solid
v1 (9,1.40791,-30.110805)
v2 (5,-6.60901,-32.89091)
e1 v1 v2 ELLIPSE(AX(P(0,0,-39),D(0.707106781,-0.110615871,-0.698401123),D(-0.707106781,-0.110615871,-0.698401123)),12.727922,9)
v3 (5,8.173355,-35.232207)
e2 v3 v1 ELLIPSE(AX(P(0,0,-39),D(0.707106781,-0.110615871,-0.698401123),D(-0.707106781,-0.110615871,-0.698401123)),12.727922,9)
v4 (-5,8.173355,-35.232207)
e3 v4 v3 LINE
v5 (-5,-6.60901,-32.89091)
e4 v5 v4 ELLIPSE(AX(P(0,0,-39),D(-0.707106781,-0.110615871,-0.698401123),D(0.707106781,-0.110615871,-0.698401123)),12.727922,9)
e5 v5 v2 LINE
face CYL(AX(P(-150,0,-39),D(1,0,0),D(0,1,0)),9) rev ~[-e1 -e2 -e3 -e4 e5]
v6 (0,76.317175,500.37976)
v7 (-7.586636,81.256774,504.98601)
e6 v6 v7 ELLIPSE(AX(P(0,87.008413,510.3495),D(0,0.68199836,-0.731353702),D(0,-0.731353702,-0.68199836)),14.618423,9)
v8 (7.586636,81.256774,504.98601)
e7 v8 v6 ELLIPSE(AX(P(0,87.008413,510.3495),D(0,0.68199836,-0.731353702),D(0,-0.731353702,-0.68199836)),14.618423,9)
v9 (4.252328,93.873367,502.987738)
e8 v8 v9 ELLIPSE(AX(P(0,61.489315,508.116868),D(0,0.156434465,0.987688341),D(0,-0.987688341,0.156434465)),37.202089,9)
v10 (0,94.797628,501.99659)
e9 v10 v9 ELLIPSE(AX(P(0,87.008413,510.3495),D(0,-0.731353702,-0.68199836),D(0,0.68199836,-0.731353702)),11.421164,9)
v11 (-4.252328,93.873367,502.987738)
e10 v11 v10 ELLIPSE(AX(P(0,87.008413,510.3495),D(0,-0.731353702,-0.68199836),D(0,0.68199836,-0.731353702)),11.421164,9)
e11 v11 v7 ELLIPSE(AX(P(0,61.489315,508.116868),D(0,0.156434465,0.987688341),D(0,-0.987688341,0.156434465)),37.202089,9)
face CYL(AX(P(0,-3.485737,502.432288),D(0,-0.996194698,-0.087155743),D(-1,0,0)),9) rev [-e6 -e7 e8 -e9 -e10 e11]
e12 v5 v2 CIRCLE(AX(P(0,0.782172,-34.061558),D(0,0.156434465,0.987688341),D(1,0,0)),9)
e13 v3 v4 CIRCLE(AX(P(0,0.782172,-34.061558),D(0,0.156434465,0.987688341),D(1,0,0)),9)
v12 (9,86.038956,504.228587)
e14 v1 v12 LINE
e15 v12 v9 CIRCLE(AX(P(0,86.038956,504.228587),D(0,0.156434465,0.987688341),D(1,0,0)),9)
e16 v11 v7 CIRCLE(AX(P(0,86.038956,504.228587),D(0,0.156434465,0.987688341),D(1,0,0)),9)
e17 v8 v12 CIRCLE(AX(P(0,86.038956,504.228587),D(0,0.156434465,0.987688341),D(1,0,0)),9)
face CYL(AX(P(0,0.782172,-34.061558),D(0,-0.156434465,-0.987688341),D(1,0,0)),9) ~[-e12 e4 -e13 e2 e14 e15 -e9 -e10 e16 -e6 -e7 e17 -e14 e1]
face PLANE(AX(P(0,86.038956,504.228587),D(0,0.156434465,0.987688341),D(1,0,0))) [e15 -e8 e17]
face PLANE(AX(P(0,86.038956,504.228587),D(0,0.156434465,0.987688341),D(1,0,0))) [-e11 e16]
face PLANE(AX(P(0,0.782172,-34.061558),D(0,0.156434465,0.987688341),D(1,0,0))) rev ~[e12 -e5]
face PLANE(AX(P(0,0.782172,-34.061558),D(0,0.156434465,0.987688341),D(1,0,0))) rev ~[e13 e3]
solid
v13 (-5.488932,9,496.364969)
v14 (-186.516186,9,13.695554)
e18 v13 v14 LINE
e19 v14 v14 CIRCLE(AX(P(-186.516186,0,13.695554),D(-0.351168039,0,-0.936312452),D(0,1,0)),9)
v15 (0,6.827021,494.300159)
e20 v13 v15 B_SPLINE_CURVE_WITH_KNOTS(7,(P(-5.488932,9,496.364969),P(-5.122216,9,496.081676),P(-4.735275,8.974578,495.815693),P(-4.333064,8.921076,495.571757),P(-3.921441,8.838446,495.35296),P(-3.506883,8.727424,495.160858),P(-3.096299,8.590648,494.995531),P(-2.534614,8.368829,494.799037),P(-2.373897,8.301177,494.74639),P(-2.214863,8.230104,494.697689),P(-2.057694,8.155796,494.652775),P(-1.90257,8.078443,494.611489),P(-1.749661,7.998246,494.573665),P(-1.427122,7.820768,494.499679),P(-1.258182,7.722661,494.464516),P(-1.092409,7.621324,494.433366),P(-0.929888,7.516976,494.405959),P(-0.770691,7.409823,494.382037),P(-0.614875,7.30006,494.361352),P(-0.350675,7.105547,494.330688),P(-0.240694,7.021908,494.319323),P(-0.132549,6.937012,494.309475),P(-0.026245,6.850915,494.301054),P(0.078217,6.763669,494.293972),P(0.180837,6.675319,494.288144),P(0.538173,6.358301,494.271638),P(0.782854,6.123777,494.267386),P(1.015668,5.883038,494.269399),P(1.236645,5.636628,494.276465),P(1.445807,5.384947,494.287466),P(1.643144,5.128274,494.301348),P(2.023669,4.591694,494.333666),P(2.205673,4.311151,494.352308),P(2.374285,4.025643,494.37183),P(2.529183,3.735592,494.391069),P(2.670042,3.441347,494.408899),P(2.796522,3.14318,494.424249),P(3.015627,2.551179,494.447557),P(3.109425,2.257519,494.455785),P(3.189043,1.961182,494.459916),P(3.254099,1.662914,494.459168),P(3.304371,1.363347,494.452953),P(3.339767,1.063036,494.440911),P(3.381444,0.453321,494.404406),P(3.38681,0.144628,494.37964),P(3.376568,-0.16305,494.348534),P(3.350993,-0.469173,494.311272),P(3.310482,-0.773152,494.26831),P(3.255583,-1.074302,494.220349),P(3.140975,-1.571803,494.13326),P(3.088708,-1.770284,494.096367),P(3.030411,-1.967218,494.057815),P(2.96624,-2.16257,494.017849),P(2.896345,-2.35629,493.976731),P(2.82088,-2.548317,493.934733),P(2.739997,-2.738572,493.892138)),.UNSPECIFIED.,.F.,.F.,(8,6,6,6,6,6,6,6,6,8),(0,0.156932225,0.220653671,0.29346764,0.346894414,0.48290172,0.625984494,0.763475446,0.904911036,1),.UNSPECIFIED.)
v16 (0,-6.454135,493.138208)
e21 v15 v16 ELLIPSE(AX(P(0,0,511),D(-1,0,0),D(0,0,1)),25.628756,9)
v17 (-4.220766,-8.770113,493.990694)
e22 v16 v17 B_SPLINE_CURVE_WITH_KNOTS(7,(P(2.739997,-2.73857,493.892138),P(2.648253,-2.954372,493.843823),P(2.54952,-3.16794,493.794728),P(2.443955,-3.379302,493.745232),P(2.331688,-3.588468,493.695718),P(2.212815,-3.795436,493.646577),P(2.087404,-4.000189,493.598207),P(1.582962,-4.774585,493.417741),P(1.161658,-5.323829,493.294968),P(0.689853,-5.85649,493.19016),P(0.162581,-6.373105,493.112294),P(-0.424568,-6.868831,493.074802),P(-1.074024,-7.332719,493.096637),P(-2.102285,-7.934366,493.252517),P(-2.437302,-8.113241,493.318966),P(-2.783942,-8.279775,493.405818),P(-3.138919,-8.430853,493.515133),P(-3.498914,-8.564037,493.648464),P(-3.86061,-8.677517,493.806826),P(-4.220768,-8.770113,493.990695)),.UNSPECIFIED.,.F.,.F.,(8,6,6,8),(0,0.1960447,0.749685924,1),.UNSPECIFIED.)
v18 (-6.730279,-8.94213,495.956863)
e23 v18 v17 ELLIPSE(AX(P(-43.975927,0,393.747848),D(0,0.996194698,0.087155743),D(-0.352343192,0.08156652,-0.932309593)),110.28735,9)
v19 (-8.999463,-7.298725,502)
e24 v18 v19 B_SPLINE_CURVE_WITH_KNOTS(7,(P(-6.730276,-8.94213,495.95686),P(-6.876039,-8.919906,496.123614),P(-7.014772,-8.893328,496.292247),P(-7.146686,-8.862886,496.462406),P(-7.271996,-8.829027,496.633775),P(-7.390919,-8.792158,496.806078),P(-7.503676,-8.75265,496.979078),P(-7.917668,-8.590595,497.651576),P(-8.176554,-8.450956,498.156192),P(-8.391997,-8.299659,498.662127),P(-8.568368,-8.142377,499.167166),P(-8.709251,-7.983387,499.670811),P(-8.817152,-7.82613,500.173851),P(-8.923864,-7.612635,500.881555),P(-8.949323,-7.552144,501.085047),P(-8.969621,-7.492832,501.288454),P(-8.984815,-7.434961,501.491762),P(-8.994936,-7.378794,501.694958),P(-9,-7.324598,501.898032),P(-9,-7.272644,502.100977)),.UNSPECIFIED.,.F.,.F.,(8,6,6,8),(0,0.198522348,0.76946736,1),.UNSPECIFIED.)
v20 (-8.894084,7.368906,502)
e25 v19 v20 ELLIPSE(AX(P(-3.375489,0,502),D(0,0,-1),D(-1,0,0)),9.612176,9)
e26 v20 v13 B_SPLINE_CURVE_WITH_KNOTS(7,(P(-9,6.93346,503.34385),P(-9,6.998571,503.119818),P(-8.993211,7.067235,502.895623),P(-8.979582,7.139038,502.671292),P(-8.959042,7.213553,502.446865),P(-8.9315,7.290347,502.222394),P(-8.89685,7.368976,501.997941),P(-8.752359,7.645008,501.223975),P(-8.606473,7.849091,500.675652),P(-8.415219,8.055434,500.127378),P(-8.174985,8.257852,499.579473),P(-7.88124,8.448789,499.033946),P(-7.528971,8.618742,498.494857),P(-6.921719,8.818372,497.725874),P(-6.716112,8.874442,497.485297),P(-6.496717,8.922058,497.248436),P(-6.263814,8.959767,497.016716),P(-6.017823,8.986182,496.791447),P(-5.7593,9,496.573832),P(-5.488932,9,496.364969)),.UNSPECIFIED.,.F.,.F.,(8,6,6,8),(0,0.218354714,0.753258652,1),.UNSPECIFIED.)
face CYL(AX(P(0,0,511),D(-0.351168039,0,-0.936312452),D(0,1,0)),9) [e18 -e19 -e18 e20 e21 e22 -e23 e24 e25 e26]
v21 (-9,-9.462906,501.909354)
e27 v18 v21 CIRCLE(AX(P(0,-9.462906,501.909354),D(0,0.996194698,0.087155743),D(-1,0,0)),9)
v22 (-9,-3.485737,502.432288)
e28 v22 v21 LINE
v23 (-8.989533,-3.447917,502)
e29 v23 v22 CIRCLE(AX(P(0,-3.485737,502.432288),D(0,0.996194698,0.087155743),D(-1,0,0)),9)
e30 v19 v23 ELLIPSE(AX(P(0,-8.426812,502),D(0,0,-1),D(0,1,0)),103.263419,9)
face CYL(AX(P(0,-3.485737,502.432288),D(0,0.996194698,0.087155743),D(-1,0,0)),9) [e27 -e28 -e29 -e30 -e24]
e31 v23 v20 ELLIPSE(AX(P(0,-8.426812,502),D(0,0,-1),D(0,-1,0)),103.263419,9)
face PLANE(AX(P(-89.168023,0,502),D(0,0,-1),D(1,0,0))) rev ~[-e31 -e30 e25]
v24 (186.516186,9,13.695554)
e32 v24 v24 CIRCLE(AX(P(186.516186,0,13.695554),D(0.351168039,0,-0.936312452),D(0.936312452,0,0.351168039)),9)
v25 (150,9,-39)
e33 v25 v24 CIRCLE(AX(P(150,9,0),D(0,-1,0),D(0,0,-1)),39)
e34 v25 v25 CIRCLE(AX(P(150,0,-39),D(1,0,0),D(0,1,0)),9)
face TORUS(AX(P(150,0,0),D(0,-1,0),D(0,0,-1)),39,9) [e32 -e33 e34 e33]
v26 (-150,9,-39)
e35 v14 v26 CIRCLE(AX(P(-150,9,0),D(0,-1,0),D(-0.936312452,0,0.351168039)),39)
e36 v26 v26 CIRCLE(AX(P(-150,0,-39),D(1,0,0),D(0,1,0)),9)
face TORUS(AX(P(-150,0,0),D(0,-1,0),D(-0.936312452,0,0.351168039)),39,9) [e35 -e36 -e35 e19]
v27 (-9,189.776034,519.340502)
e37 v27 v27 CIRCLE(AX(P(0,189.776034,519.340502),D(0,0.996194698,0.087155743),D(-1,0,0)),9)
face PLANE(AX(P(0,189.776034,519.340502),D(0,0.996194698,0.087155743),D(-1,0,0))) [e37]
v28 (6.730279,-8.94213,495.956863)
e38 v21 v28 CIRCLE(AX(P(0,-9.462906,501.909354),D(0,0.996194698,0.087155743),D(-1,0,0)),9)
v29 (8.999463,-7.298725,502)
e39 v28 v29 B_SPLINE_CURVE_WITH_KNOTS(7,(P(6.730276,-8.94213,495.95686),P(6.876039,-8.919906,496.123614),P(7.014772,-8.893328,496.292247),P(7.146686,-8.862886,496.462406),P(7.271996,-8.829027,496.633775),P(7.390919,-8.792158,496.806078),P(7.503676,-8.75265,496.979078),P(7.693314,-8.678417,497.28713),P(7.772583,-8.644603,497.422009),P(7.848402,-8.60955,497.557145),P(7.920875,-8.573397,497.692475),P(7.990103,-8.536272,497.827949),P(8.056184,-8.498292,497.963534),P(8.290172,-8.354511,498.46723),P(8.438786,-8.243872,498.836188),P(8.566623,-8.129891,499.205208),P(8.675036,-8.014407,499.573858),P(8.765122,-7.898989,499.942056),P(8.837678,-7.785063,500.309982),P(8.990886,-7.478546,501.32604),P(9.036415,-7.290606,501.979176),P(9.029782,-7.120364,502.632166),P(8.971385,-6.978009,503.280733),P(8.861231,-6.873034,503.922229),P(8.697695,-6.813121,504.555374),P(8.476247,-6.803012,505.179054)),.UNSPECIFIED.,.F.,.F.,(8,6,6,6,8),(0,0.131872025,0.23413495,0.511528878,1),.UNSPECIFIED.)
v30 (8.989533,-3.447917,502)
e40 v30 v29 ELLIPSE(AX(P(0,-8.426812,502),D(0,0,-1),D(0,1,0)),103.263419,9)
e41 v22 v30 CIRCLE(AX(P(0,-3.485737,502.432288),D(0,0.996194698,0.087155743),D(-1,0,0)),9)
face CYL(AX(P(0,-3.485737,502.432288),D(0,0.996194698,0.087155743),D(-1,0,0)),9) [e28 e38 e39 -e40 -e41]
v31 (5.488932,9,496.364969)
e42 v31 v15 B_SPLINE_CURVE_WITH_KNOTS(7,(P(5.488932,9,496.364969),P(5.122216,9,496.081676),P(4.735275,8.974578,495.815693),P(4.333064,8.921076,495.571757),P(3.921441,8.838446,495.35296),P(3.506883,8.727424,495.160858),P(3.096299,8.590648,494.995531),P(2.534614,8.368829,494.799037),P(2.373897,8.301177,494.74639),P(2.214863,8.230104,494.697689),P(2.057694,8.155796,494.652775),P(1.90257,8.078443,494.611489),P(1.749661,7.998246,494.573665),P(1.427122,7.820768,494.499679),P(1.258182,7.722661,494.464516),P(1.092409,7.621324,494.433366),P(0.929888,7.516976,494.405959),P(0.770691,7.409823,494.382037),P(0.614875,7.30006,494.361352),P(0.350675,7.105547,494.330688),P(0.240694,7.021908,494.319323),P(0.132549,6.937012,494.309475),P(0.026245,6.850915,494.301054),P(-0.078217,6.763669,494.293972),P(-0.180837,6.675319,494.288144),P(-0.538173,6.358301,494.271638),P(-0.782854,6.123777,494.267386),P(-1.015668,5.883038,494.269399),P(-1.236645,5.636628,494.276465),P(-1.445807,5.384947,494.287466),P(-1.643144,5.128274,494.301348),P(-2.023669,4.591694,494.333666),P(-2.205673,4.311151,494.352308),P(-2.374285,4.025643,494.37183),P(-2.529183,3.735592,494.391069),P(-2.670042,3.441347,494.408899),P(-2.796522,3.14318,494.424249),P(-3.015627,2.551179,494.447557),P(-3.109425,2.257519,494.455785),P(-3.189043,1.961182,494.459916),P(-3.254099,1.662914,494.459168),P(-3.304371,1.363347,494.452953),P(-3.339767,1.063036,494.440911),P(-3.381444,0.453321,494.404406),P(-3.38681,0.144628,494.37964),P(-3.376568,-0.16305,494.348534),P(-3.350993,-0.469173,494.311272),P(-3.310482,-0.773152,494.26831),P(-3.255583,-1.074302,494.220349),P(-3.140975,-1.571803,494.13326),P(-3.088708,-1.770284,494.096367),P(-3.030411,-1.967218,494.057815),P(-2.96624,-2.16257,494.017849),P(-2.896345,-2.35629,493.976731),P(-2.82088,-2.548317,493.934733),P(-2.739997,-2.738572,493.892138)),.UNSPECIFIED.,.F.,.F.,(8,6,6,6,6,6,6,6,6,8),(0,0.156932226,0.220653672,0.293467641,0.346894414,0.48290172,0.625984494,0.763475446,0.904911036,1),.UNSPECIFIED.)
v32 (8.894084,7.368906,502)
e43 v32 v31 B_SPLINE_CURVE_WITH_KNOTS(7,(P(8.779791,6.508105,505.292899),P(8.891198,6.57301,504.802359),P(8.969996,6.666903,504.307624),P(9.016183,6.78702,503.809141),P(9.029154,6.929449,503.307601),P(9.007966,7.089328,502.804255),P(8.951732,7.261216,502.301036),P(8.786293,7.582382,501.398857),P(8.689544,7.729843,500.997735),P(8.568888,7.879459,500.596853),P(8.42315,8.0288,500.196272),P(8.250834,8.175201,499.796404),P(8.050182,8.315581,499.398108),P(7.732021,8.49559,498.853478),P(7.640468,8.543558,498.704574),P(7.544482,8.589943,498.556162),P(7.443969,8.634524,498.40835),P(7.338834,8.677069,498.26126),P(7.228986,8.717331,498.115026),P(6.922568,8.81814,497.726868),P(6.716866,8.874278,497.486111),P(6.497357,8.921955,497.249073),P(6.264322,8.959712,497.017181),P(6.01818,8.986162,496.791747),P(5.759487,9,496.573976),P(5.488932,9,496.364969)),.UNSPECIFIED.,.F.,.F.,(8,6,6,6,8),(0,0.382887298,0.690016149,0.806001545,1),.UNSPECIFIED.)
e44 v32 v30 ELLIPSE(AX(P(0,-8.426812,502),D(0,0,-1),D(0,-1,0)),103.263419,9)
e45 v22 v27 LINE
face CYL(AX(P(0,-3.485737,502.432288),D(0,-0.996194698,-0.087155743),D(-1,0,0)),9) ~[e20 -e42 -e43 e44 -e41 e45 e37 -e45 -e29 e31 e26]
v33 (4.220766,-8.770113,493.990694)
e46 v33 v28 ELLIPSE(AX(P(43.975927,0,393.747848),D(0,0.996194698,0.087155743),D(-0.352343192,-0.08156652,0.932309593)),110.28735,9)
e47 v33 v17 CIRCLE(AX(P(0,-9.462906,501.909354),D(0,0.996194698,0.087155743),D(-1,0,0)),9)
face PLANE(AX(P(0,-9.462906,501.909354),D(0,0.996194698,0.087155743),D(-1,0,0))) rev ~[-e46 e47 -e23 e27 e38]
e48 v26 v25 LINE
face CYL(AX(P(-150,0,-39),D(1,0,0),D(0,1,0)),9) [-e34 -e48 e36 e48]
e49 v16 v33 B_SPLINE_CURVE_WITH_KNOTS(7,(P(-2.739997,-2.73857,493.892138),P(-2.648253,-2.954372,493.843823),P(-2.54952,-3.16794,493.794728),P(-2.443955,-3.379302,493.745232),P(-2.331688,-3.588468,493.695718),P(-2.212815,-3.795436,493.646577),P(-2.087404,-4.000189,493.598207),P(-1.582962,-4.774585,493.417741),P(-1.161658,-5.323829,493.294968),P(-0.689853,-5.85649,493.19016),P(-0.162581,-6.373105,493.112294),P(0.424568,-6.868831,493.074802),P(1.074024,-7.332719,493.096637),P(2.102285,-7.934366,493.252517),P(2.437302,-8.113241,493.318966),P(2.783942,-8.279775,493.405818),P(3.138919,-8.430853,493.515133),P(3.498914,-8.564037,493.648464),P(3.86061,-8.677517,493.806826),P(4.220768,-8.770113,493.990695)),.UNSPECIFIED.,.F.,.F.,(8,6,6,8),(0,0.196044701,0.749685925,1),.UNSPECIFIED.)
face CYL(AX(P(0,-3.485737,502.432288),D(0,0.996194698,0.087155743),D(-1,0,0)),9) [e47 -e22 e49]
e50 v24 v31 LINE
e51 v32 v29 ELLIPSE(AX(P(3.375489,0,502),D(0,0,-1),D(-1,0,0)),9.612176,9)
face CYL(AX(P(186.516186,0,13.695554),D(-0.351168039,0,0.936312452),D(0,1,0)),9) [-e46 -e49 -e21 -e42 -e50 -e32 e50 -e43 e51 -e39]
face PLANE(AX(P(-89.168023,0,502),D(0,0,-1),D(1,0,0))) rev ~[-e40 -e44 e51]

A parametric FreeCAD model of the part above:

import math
import FreeCAD as App
import Part
import Sketcher
from FreeCAD import Vector
Q = App.Units.Quantity

doc = App.newDocument("Part")
body = doc.addObject("PartDesign::Body", "Body")

sketch1 = body.newObject("Sketcher::SketchObject", "Sketch")
sketch1.AttachmentSupport = (doc.getObject("YZ_Plane"), [""])
sketch1.MapMode = "FlatFace"
sketch1.AttachmentOffset = App.Placement(Vector(0, 0, 150), App.Rotation())
sketch1.addGeometry(Part.Circle(Vector(0, -39, 0), Vector(0, 0, 1), 9), False)
sketch1.addConstraint(Sketcher.Constraint("PointOnObject", 0, 3, -2))
sketch1.addConstraint(Sketcher.Constraint("Diameter", 0, Q("18 mm")))
sketch1.addConstraint(Sketcher.Constraint("DistanceY", 0, 3, -1, 1, Q("39 mm")))

sketch2 = body.newObject("Sketcher::SketchObject", "Sketch001")
sketch2.AttachmentSupport = (doc.getObject("XZ_Plane"), [""])
sketch2.MapMode = "FlatFace"
sketch2.addGeometry(Part.LineSegment(Vector(-150, -39, 0), Vector(150, -39, 0)), False)
sketch2.addGeometry(Part.ArcOfCircle(Part.Circle(Vector(150, 0, 0), Vector(0, 0, 1), 39), math.radians(-90), math.radians(20.558774)), False)
sketch2.addGeometry(Part.LineSegment(Vector(186.516186, 13.695554, 0), Vector(0, 511, 0)), False)
sketch2.addGeometry(Part.LineSegment(Vector(0, 511, 0), Vector(-186.516186, 13.695554, 0)), False)
sketch2.addGeometry(Part.ArcOfCircle(Part.Circle(Vector(-150, 0, 0), Vector(0, 0, 1), 39), math.radians(159.441226), math.radians(270)), False)
sketch2.addConstraint(Sketcher.Constraint("Tangent", 0, 2, 1, 1))
sketch2.addConstraint(Sketcher.Constraint("Tangent", 1, 2, 2, 1))
sketch2.addConstraint(Sketcher.Constraint("Coincident", 2, 2, 3, 1))
sketch2.addConstraint(Sketcher.Constraint("Tangent", 3, 2, 4, 1))
sketch2.addConstraint(Sketcher.Constraint("Tangent", 4, 2, 0, 1))
sketch2.addConstraint(Sketcher.Constraint("Horizontal", 0))
sketch2.addConstraint(Sketcher.Constraint("Equal", 1, 4))
sketch2.addConstraint(Sketcher.Constraint("Symmetric", 1, 3, 4, 3, -1, 1))
sketch2.addConstraint(Sketcher.Constraint("PointOnObject", 2, 2, -2))
sketch2.addConstraint(Sketcher.Constraint("Radius", 1, Q("39 mm")))
sketch2.addConstraint(Sketcher.Constraint("DistanceX", 0, 1, 0, 2, Q("300 mm")))
sketch2.addConstraint(Sketcher.Constraint("DistanceY", -1, 1, 2, 2, Q("511 mm")))
doc.recompute()

additivepipe = body.newObject("PartDesign::AdditivePipe", "AdditivePipe")
additivepipe.Profile = sketch1
additivepipe.Spine = (sketch2, ["Edge1", "Edge2", "Edge3", "Edge4", "Edge5"])
additivepipe.Transition = "Right corner"

sketch3 = body.newObject("Sketcher::SketchObject", "Sketch002")
sketch3.AttachmentSupport = (doc.getObject("XZ_Plane"), [""])
sketch3.MapMode = "FlatFace"
sketch3.addGeometry(Part.LineSegment(Vector(-89.168023, 572.145697, 0), Vector(-89.168023, 502, 0)), False)
sketch3.addGeometry(Part.LineSegment(Vector(-89.168023, 502, 0), Vector(122.257102, 502, 0)), False)
sketch3.addGeometry(Part.LineSegment(Vector(122.257102, 502, 0), Vector(122.257102, 572.145697, 0)), False)
sketch3.addGeometry(Part.LineSegment(Vector(122.257102, 572.145697, 0), Vector(-89.168023, 572.145697, 0)), False)
sketch3.addConstraint(Sketcher.Constraint("Coincident", 0, 2, 1, 1))
sketch3.addConstraint(Sketcher.Constraint("Coincident", 1, 2, 2, 1))
sketch3.addConstraint(Sketcher.Constraint("Coincident", 2, 2, 3, 1))
sketch3.addConstraint(Sketcher.Constraint("Coincident", 3, 2, 0, 1))
sketch3.addConstraint(Sketcher.Constraint("Vertical", 0))
sketch3.addConstraint(Sketcher.Constraint("Horizontal", 1))
sketch3.addConstraint(Sketcher.Constraint("Vertical", 2))
sketch3.addConstraint(Sketcher.Constraint("Horizontal", 3))
sketch3.addConstraint(Sketcher.Constraint("DistanceY", -1, 1, 0, 2, Q("502 mm")))
sketch3.addConstraint(Sketcher.Constraint("DistanceX", -1, 1, 1, 2, Q("122.257102 mm")))
sketch3.addConstraint(Sketcher.Constraint("DistanceX", 1, 1, 1, 2, Q("211.425125 mm")))
sketch3.addConstraint(Sketcher.Constraint("DistanceY", 0, 2, 0, 1, Q("70.145697 mm")))
pocket1 = body.newObject("PartDesign::Pocket", "Pocket")
pocket1.Profile = sketch3
pocket1.Length = 25
pocket1.Midplane = True

sketch4 = body.newObject("Sketcher::SketchObject", "Sketch003")
sketch4.Placement = App.Placement(Vector(0, 40.163966, 3.513892), App.Rotation(Vector(-1, 0, 0), Vector(0, -0.087155743, 0.996194698), Vector(0, 0.996194698, 0.087155743), "ZXY"))
sketch4.addGeometry(Part.Circle(Vector(0, 500.824183, 0), Vector(0, 0, 1), 9), False)
sketch4.addConstraint(Sketcher.Constraint("PointOnObject", 0, 3, -2))
sketch4.addConstraint(Sketcher.Constraint("Diameter", 0, Q("18 mm")))
sketch4.addConstraint(Sketcher.Constraint("DistanceY", -1, 1, 0, 3, Q("500.824183 mm")))
pad1 = body.newObject("PartDesign::Pad", "Pad")
pad1.Profile = sketch4
pad1.Type = "TwoLengths"
pad1.Length = 194
pad1.Length2 = 6
body2 = doc.addObject("PartDesign::Body", "Body001")

sketch5 = body2.newObject("Sketcher::SketchObject", "Sketch004")
sketch5.Placement = App.Placement(Vector(0, -5.243659, -33.10716), App.Rotation(Vector(1, 0, 0), Vector(0, 0.987688341, -0.156434465), Vector(0, 0.156434465, 0.987688341), "ZXY"))
sketch5.addGeometry(Part.Circle(Vector(0, 6.100944, 0), Vector(0, 0, 1), 9), False)
sketch5.addConstraint(Sketcher.Constraint("PointOnObject", 0, 3, -2))
sketch5.addConstraint(Sketcher.Constraint("Diameter", 0, Q("18 mm")))
sketch5.addConstraint(Sketcher.Constraint("DistanceY", -1, 1, 0, 3, Q("6.100944 mm")))
pad2 = body2.newObject("PartDesign::Pad", "Pad001")
pad2.Profile = sketch5
pad2.Length = 545
doc.recompute()

body3 = doc.addObject("PartDesign::Body", "Body002")
body3.BaseFeature = body
boolean = body2.newObject("PartDesign::Boolean", "Boolean")
boolean.Type = "Cut"
boolean.addObjects([body3])
doc.recompute()

doc.recompute()
